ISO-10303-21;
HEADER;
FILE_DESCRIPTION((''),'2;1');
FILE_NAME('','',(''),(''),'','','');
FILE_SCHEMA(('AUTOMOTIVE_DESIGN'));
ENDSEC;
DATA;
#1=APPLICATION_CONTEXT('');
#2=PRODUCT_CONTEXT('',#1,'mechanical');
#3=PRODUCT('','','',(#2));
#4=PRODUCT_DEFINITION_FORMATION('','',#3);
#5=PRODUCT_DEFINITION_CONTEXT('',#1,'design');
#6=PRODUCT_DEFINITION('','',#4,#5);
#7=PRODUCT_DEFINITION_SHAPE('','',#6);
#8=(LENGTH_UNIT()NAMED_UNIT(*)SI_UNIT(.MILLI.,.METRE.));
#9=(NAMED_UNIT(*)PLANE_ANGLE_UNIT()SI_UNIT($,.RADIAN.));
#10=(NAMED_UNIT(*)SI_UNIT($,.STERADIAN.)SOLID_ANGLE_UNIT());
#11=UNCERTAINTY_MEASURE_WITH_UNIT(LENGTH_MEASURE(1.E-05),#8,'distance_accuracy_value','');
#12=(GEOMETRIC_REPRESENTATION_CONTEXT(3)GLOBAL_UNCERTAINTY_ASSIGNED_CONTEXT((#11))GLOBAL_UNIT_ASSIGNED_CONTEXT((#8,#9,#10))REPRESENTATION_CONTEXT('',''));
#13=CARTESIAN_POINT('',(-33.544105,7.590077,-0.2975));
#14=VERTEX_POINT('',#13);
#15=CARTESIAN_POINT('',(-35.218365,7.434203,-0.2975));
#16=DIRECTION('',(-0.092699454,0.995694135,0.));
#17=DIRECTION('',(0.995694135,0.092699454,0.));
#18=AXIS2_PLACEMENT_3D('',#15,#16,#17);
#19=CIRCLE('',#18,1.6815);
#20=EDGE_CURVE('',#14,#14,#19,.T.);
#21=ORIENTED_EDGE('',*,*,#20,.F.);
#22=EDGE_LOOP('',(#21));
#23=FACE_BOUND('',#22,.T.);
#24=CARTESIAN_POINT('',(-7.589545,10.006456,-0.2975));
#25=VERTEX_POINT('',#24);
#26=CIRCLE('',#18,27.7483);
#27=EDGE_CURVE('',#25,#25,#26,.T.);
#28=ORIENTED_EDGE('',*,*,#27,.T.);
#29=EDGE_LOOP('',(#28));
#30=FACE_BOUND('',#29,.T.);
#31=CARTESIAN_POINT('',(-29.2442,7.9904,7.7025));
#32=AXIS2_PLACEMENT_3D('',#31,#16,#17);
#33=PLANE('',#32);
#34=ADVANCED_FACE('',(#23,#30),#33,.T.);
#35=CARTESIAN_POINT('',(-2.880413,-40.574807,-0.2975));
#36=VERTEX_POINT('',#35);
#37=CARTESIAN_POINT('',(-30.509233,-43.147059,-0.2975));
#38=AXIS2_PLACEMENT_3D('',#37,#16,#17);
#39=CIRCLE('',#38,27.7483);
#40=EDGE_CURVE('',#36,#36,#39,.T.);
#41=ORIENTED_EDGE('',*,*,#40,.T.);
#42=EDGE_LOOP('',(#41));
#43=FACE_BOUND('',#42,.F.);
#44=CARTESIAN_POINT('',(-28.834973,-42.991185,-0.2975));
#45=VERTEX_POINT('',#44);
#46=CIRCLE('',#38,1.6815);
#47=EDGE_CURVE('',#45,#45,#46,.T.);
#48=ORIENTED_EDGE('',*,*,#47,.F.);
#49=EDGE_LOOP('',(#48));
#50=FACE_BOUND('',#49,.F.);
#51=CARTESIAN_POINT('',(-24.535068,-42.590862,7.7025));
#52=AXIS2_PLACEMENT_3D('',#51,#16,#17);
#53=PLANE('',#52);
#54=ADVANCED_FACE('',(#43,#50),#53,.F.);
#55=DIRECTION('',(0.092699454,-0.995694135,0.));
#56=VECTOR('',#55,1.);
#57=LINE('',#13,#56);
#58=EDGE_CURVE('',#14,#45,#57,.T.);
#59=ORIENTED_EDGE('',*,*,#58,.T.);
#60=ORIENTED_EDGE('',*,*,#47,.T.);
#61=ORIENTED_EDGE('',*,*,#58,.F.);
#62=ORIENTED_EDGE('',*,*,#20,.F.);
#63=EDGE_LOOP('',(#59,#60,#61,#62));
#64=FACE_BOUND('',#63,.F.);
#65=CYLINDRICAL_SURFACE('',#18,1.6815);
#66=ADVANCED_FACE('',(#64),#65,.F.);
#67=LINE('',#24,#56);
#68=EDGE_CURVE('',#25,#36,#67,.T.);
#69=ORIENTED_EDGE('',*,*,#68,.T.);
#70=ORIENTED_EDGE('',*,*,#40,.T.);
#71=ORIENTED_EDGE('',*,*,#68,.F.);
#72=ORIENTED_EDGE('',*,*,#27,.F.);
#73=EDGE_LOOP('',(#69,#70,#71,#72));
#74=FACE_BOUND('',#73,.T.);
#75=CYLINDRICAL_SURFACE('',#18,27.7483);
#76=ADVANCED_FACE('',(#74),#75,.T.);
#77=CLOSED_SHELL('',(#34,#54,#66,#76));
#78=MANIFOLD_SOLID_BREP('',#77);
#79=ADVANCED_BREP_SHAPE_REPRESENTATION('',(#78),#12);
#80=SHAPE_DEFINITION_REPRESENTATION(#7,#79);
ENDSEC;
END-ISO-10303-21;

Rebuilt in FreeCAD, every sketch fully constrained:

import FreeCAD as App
import Part
import Sketcher

V = App.Vector
Q = App.Units.Quantity

doc = App.newDocument("Part")
body = doc.addObject("PartDesign::Body", "Body")

# Sketch on an angled plane
sketch1 = body.newObject("Sketcher::SketchObject", "Sketch")
sketch1.Placement = App.Placement(V(-29.2442, 7.9904, 7.7025), App.Rotation(V(0.995694135, 0.092699454, 0), V(0, 0, -0.999999999), V(-0.092699454, 0.995694135, 0), "ZXY"))
sketch1.addGeometry([
    Part.Circle(V(-6, 8, 0), V(0, 0, 1), 27.7483),
    Part.Circle(V(-6, 8, 0), V(0, 0, 1), 1.6815),
], False)
sketch1.addConstraint([
    Sketcher.Constraint("Coincident", 1, 3, 0, 3),
    Sketcher.Constraint("Diameter", 0, Q("2.1849 in")),
    Sketcher.Constraint("Diameter", 1, Q("0.1324 in")),
    Sketcher.Constraint("DistanceX", 0, 3, -1, 1, 6.0),
    Sketcher.Constraint("DistanceY", -1, 1, 0, 3, 8.0),
])
pad1 = body.newObject("PartDesign::Pad", "Pad")
pad1.Profile = sketch1
pad1.Length = Q("2 in")
pad1.Reversed = True

doc.recompute()
